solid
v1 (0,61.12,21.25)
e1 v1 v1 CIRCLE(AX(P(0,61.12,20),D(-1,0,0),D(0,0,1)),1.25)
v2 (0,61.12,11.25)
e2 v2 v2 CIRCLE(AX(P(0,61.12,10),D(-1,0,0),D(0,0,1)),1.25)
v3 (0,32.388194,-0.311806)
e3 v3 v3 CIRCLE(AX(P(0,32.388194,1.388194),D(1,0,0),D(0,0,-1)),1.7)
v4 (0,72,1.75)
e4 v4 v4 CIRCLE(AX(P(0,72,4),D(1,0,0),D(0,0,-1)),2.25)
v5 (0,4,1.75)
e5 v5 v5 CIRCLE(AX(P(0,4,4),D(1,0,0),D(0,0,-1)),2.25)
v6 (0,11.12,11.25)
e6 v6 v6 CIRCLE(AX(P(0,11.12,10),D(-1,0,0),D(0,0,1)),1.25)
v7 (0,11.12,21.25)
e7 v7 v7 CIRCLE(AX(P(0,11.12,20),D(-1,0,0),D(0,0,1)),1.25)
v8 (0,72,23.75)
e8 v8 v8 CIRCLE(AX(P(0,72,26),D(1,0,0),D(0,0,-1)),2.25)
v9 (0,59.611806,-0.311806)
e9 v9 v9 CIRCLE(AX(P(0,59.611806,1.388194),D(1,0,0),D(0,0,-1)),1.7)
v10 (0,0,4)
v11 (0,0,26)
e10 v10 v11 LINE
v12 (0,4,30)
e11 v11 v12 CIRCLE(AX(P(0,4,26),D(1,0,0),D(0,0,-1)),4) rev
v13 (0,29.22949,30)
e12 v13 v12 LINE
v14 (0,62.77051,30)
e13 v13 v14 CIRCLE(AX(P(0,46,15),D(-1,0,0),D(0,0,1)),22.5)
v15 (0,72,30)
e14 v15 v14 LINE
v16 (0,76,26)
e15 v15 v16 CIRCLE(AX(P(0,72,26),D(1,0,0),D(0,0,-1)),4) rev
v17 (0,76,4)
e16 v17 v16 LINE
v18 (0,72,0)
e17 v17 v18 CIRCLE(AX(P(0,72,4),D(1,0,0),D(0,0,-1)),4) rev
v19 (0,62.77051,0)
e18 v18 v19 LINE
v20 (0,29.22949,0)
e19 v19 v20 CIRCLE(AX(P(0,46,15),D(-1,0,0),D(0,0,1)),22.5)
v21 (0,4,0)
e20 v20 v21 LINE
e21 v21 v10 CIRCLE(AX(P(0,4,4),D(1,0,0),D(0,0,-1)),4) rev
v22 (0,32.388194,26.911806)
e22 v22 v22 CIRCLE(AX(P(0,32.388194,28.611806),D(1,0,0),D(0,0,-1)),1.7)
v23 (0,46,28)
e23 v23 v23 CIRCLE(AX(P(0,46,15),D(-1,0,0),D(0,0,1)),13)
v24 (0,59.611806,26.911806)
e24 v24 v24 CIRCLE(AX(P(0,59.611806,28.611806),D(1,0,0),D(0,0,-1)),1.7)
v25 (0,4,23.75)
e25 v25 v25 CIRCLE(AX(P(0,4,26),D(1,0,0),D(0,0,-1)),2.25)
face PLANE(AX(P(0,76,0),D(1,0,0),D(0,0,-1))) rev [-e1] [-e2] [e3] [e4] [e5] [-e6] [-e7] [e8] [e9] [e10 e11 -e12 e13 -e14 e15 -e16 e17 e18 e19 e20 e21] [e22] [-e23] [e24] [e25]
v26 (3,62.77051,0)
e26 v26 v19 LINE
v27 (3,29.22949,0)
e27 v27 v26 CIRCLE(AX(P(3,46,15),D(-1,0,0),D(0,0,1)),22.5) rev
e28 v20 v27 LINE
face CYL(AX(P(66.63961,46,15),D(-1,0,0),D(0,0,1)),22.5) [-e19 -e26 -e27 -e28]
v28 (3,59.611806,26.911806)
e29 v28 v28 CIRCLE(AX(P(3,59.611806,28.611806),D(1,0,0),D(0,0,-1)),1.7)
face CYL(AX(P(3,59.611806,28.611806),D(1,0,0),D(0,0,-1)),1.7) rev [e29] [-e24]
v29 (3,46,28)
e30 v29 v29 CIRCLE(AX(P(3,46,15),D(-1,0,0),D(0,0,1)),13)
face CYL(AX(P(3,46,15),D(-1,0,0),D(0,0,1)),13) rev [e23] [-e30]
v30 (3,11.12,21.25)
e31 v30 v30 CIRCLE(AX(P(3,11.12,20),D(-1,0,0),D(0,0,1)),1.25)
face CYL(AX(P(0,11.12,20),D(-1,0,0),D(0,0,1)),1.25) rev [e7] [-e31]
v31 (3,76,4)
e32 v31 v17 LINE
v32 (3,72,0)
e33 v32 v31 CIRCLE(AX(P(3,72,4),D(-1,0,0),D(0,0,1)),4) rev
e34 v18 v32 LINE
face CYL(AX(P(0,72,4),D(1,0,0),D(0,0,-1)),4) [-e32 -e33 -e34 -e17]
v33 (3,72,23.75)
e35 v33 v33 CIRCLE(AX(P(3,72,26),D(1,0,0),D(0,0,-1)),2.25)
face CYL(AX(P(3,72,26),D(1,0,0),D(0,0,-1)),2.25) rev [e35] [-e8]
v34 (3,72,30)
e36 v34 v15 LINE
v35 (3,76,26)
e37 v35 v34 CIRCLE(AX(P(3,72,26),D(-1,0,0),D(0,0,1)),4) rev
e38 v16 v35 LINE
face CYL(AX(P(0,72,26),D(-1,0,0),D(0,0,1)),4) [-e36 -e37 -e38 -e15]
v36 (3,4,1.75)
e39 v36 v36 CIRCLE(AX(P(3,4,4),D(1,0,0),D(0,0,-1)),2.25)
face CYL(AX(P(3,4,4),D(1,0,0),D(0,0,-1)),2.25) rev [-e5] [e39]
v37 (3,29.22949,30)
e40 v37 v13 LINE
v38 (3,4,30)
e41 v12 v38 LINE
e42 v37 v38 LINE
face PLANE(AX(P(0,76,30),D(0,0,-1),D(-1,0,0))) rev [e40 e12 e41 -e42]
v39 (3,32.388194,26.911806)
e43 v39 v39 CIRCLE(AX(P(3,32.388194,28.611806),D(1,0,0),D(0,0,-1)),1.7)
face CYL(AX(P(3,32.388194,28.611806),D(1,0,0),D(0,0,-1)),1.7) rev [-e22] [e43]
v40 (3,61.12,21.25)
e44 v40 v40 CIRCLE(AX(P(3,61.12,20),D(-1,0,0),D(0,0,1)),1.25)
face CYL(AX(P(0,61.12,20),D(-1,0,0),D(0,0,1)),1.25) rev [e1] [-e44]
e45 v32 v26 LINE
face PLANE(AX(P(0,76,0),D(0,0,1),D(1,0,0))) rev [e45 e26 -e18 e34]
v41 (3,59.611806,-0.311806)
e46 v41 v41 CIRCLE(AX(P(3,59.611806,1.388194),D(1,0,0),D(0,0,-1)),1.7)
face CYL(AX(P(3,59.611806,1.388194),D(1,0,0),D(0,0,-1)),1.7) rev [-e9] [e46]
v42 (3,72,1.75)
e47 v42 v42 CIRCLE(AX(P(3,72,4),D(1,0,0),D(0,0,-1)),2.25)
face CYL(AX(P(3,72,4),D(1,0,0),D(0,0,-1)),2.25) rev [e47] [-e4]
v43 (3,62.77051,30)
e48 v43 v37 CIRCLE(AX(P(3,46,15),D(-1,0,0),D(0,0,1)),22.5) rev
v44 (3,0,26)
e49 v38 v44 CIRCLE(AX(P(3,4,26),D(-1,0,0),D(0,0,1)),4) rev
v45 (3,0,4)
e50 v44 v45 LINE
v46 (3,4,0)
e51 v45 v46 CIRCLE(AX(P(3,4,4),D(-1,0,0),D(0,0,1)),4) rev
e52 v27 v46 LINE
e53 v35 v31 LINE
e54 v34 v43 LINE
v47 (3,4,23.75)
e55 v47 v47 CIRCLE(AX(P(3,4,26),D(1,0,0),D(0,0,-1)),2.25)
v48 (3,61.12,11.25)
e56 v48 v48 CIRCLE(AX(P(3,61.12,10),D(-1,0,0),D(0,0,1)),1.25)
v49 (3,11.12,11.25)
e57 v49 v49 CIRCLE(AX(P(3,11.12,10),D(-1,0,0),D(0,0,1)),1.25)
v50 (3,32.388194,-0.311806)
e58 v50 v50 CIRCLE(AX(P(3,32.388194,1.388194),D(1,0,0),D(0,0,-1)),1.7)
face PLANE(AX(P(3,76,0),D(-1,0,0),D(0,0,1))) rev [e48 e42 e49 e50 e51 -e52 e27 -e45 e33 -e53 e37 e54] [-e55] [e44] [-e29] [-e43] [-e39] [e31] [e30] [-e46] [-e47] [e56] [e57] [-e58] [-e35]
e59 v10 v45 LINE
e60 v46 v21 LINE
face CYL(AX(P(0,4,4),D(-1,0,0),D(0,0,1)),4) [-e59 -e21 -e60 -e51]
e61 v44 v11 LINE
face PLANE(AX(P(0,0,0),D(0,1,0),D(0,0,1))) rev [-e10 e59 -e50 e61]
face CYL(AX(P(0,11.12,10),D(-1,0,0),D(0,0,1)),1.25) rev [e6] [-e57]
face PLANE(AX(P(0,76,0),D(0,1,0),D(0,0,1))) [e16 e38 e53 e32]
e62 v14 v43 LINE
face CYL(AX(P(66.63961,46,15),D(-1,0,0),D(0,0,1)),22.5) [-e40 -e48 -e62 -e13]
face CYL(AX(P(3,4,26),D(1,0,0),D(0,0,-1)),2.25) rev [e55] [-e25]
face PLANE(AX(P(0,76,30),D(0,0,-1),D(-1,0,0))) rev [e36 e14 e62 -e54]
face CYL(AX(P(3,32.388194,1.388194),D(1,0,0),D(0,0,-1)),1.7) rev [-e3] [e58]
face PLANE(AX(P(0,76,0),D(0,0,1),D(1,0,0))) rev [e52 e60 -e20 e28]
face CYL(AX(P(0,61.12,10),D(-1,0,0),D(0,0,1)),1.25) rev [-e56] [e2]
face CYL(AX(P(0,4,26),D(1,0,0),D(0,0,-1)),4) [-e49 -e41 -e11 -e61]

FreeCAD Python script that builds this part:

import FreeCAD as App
import Part
import Sketcher
Q = App.Units.Quantity


def edges_at(feature, points):
    """Names of the edges that pass closest to the given points."""
    edges = feature.Shape.Edges
    near = lambda p: min(range(len(edges)), key=lambda i: edges[i].distToShape(Part.Vertex(*p))[0])
    return sorted({f"Edge{near(p) + 1}" for p in points})

doc = App.newDocument("Part")
body = doc.addObject("PartDesign::Body", "Body")

# Sketch on XZ plane
sketch1 = body.newObject("Sketcher::SketchObject", "Sketch")
sketch1.AttachmentSupport = (doc.getObject("XZ_Plane"), [""])
sketch1.MapMode = "FlatFace"
sketch1.addGeometry([
    Part.LineSegment(App.Vector(0, 0, 0), App.Vector(0, 30, 0)),
    Part.LineSegment(App.Vector(0, 30, 0), App.Vector(3, 30, 0)),
    Part.LineSegment(App.Vector(3, 30, 0), App.Vector(3, 0, 0)),
    Part.LineSegment(App.Vector(3, 0, 0), App.Vector(0, 0, 0)),
], False)
sketch1.addConstraint([
    Sketcher.Constraint("Coincident", 0, 2, 1, 1),
    Sketcher.Constraint("Coincident", 1, 2, 2, 1),
    Sketcher.Constraint("Coincident", 2, 2, 3, 1),
    Sketcher.Constraint("Coincident", 3, 2, 0, 1),
    Sketcher.Constraint("Vertical", 0),
    Sketcher.Constraint("Horizontal", 1),
    Sketcher.Constraint("Vertical", 2),
    Sketcher.Constraint("Horizontal", 3),
    Sketcher.Constraint("Coincident", 3, 2, -1, 1),
    Sketcher.Constraint("DistanceX", 1, 1, 1, 2, Q("3 mm")),
    Sketcher.Constraint("DistanceY", 0, 1, 0, 2, Q("30 mm")),
])
pad1 = body.newObject("PartDesign::Pad", "Pad")
pad1.Profile = sketch1
pad1.Length = 76
pad1.Reversed = True

# Sketch on YZ plane
sketch2 = body.newObject("Sketcher::SketchObject", "Sketch001")
sketch2.AttachmentSupport = (doc.getObject("YZ_Plane"), [""])
sketch2.MapMode = "FlatFace"
sketch2.addGeometry(Part.Circle(App.Vector(46, 15, 0), App.Vector(0, 0, 1), 22), False)
sketch2.addConstraint([
    Sketcher.Constraint("Diameter", 0, Q("45 mm")),
    Sketcher.Constraint("DistanceX", -1, 1, 0, 3, Q("46 mm")),
    Sketcher.Constraint("DistanceY", -1, 1, 0, 3, Q("15 mm")),
])
pad2 = body.newObject("PartDesign::Pad", "Pad001")
pad2.Profile = sketch2
pad2.Length = 3

# Sketch on YZ plane
sketch3 = body.newObject("Sketcher::SketchObject", "Sketch002")
sketch3.AttachmentSupport = (doc.getObject("YZ_Plane"), [""])
sketch3.MapMode = "FlatFace"
sketch3.addGeometry(Part.Circle(App.Vector(46, 15, 0), App.Vector(0, 0, 1), 13), False)
sketch3.addConstraint([
    Sketcher.Constraint("Diameter", 0, Q("26 mm")),
    Sketcher.Constraint("DistanceX", -1, 1, 0, 3, Q("46 mm")),
    Sketcher.Constraint("DistanceY", -1, 1, 0, 3, Q("15 mm")),
])
pocket1 = body.newObject("PartDesign::Pocket", "Pocket")
pocket1.Profile = sketch3
pocket1.Type = "ThroughAll"
pocket1.Reversed = True

# Sketch on YZ plane
sketch4 = body.newObject("Sketcher::SketchObject", "Sketch003")
sketch4.AttachmentSupport = (doc.getObject("YZ_Plane"), [""])
sketch4.MapMode = "FlatFace"
sketch4.AttachmentOffset = App.Placement(App.Vector(0, 0, 3), App.Rotation())
sketch4.addGeometry([
    Part.Circle(App.Vector(59.6, 28.6, 0), App.Vector(0, 0, 1), 1.7),
    Part.Circle(App.Vector(59.6, 1.4, 0), App.Vector(0, 0, 1), 1.7),
    Part.Circle(App.Vector(32.4, 1.4, 0), App.Vector(0, 0, 1), 1.7),
    Part.Circle(App.Vector(32.4, 28.6, 0), App.Vector(0, 0, 1), 1.7),
], False)
sketch4.addConstraint([
    Sketcher.Constraint("Equal", 0, 1),
    Sketcher.Constraint("Equal", 1, 2),
    Sketcher.Constraint("Equal", 2, 3),
    Sketcher.Constraint("Horizontal", 1, 3, 2, 3),
    Sketcher.Constraint("Horizontal", 0, 3, 3, 3),
    Sketcher.Constraint("Vertical", 0, 3, 1, 3),
    Sketcher.Constraint("Vertical", 2, 3, 3, 3),
    Sketcher.Constraint("Diameter", 0, Q("3.4 mm")),
    Sketcher.Constraint("DistanceY", 1, 3, 0, 3, Q("27.223611 mm")),
    Sketcher.Constraint("DistanceX", 2, 3, 1, 3, Q("27.223611 mm")),
    Sketcher.Constraint("DistanceX", -1, 1, 0, 3, Q("59.611806 mm")),
    Sketcher.Constraint("DistanceY", -1, 1, 0, 3, Q("28.611806 mm")),
])
doc.recompute()
hole = body.newObject("PartDesign::Hole", "Hole")
hole.Profile = sketch4
hole.ThreadType = "None"
hole.Diameter = 3.4
hole.DepthType = "ThroughAll"

# Sketch on YZ plane
sketch5 = body.newObject("Sketcher::SketchObject", "Sketch004")
sketch5.AttachmentSupport = (doc.getObject("YZ_Plane"), [""])
sketch5.MapMode = "FlatFace"
sketch5.AttachmentOffset = App.Placement(App.Vector(0, 0, 3), App.Rotation())
sketch5.addGeometry([
    Part.Circle(App.Vector(72, 26, 0), App.Vector(0, 0, 1), 2.2),
    Part.Circle(App.Vector(72, 4, 0), App.Vector(0, 0, 1), 2.2),
    Part.Circle(App.Vector(4, 4, 0), App.Vector(0, 0, 1), 2.2),
    Part.Circle(App.Vector(4, 26, 0), App.Vector(0, 0, 1), 2.2),
], False)
sketch5.addConstraint([
    Sketcher.Constraint("Equal", 0, 1),
    Sketcher.Constraint("Equal", 1, 2),
    Sketcher.Constraint("Equal", 2, 3),
    Sketcher.Constraint("Horizontal", 1, 3, 2, 3),
    Sketcher.Constraint("Horizontal", 0, 3, 3, 3),
    Sketcher.Constraint("Vertical", 0, 3, 1, 3),
    Sketcher.Constraint("Vertical", 2, 3, 3, 3),
    Sketcher.Constraint("Diameter", 0, Q("4.5 mm")),
    Sketcher.Constraint("DistanceX", -1, 1, 0, 3, Q("72 mm")),
    Sketcher.Constraint("DistanceY", -1, 1, 0, 3, Q("26 mm")),
    Sketcher.Constraint("DistanceY", -1, 1, 1, 3, Q("4 mm")),
    Sketcher.Constraint("DistanceX", -1, 1, 2, 3, Q("4 mm")),
])
doc.recompute()
hole2 = body.newObject("PartDesign::Hole", "Hole001")
hole2.Profile = sketch5
hole2.ThreadType = "None"
hole2.Diameter = 4.5
hole2.DepthType = "ThroughAll"
doc.recompute()

fillet = body.newObject("PartDesign::Fillet", "Fillet")
fillet.Base = (hole2, edges_at(hole2, [
    (1.5, 76, 0),
    (1.5, 0, 0),
    (1.5, 0, 30),
    (1.5, 76, 30),
]))
fillet.Radius = 4

# Sketch on YZ plane
sketch6 = body.newObject("Sketcher::SketchObject", "Sketch005")
sketch6.AttachmentSupport = (doc.getObject("YZ_Plane"), [""])
sketch6.MapMode = "FlatFace"
sketch6.addGeometry([
    Part.Circle(App.Vector(61.1, 10, 0), App.Vector(0, 0, 1), 1.2),
    Part.Circle(App.Vector(61.1, 20, 0), App.Vector(0, 0, 1), 1.2),
    Part.Circle(App.Vector(11.1, 10, 0), App.Vector(0, 0, 1), 1.2),
    Part.Circle(App.Vector(11.1, 20, 0), App.Vector(0, 0, 1), 1.2),
], False)
sketch6.addConstraint([
    Sketcher.Constraint("Equal", 0, 1),
    Sketcher.Constraint("Equal", 1, 2),
    Sketcher.Constraint("Equal", 2, 3),
    Sketcher.Constraint("Horizontal", 0, 3, 2, 3),
    Sketcher.Constraint("Horizontal", 1, 3, 3, 3),
    Sketcher.Constraint("Vertical", 0, 3, 1, 3),
    Sketcher.Constraint("Vertical", 2, 3, 3, 3),
    Sketcher.Constraint("Diameter", 0, Q("2.5 mm")),
    Sketcher.Constraint("DistanceY", -1, 1, 0, 3, Q("10 mm")),
    Sketcher.Constraint("DistanceY", -1, 1, 1, 3, Q("20 mm")),
    Sketcher.Constraint("DistanceX", 2, 3, 0, 3, Q("50 mm")),
    Sketcher.Constraint("DistanceX", -1, 1, 0, 3, Q("61.12 mm")),
])
doc.recompute()
hole3 = body.newObject("PartDesign::Hole", "Hole002")
hole3.Profile = sketch6
hole3.ThreadType = "None"
hole3.Diameter = 2.5
hole3.DepthType = "ThroughAll"
hole3.Reversed = True

doc.recompute()
